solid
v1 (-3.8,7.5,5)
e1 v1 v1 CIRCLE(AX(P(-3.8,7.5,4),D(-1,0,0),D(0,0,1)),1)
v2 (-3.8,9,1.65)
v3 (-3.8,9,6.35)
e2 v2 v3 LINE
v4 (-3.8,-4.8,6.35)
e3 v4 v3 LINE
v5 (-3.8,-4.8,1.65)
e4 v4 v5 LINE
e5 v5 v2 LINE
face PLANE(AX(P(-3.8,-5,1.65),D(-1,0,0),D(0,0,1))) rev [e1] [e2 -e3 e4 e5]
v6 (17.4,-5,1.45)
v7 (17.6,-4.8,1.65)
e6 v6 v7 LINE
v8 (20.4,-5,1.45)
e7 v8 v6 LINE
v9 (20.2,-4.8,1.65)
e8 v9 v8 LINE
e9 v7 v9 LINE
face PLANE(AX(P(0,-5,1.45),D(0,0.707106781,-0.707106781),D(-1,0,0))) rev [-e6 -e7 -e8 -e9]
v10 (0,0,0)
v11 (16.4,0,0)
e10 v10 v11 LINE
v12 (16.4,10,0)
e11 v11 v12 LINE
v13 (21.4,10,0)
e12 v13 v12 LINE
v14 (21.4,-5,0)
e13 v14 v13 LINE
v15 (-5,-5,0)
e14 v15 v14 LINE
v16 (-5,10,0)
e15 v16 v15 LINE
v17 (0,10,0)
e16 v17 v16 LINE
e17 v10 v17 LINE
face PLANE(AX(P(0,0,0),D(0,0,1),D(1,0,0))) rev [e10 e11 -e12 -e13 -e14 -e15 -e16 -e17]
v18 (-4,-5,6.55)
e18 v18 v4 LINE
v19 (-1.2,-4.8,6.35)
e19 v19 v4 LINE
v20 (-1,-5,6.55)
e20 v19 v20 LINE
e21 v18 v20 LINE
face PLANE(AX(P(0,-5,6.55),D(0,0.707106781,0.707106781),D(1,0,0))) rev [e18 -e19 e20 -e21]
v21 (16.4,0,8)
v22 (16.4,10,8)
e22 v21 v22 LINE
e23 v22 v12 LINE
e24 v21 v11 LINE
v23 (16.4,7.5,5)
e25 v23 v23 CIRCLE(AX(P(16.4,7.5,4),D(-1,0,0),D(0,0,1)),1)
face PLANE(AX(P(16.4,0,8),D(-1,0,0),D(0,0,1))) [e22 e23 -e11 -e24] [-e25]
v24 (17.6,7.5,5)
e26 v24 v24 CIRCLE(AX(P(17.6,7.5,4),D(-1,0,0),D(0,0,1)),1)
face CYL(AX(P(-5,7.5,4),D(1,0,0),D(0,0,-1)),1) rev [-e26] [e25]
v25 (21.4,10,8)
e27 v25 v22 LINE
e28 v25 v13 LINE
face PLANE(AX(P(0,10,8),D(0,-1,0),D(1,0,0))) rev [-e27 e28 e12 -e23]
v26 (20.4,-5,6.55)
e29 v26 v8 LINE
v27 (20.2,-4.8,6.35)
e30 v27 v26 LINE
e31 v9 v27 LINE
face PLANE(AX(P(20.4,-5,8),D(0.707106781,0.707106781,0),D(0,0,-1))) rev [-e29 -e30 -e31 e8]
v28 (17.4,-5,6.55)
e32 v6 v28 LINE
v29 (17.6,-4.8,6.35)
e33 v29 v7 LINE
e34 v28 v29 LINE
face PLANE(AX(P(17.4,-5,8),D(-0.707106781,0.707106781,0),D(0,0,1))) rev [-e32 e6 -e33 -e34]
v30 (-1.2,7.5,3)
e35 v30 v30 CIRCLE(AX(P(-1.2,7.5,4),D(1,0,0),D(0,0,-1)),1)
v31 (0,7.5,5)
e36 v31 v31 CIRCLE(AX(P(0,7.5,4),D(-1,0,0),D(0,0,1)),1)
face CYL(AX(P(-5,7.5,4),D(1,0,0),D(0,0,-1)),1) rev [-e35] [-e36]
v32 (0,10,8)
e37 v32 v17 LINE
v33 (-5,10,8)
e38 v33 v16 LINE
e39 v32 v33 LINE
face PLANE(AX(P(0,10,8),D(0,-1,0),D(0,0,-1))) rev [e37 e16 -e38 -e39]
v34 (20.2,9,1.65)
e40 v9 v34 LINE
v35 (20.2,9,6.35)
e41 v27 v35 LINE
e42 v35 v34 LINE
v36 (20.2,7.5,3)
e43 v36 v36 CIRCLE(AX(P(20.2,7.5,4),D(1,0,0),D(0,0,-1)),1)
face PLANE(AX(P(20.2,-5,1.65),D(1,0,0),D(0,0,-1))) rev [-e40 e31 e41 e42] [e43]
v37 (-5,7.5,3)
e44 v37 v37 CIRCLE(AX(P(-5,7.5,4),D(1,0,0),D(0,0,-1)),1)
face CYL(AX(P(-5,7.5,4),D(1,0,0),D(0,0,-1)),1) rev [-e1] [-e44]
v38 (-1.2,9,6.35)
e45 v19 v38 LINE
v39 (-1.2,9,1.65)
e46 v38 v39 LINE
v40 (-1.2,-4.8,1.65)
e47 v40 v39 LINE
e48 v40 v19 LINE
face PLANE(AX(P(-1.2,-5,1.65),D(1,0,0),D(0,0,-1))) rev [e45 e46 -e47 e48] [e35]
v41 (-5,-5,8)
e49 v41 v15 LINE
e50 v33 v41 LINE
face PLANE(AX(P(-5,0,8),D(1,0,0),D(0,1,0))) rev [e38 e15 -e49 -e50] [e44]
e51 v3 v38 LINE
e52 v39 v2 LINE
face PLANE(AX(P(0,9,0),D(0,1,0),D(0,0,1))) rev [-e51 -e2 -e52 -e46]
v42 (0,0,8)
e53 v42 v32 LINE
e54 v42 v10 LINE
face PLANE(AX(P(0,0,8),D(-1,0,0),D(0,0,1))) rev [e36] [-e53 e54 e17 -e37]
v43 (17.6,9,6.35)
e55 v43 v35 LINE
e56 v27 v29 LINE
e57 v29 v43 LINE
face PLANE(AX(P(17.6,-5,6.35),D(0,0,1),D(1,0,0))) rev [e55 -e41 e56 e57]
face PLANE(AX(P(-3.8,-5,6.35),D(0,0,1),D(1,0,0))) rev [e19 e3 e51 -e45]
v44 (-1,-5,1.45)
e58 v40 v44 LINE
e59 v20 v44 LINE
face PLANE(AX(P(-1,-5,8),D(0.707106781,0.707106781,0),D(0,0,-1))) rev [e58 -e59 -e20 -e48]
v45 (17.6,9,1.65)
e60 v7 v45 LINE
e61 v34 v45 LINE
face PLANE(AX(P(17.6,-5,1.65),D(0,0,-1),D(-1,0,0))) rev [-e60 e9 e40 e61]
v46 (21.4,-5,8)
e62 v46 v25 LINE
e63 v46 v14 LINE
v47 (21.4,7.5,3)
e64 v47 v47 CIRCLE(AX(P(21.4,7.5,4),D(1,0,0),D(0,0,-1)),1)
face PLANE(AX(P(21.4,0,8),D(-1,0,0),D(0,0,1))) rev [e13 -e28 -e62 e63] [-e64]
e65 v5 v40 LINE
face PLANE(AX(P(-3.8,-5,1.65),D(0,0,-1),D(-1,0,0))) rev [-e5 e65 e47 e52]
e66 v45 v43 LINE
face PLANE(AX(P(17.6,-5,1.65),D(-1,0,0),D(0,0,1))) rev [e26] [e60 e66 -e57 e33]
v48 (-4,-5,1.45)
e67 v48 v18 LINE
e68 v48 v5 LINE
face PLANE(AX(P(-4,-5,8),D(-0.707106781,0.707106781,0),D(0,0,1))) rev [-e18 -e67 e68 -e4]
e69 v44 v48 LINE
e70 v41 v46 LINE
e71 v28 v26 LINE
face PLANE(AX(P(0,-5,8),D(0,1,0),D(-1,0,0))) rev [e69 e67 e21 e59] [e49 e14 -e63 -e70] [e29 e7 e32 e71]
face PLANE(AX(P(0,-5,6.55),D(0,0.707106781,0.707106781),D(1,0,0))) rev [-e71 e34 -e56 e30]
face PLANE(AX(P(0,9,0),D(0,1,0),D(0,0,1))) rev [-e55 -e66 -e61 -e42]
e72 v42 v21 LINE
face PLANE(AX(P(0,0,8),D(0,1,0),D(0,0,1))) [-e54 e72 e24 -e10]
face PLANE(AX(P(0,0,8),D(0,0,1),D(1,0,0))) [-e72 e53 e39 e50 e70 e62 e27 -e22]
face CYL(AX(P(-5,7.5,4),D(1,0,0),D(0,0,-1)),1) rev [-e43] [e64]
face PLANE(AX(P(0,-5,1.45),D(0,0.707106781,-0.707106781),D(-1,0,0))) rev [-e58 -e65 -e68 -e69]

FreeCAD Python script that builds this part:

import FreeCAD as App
import Part
import Sketcher

V = App.Vector


def edges_at(feature, points):
    """Names of the edges that pass closest to the given points."""
    edges = feature.Shape.Edges
    near = lambda p: min(range(len(edges)), key=lambda i: edges[i].distToShape(Part.Vertex(*p))[0])
    return sorted({f"Edge{near(p) + 1}" for p in points})

doc = App.newDocument("Part")
params = doc.addObject("Spreadsheet::Sheet", "Params")
for row, (alias, value) in enumerate([
    ("sketch1_width", "5 mm"),
    ("sketch1_height", "15 mm"),
    ("sketch1_height2", "10 mm"),
    ("sketch1_width2", "16.4 mm"),
    ("pad1_length", "8 mm"),
    ("sketch2_width", "2.6 mm"),
    ("sketch2_height", "4.7 mm"),
    ("sketch3_diameter", "2 mm"),
    ("chamfer_size", "0.2 mm"),
], start=1):
    params.set(f"A{row}", alias)
    params.set(f"B{row}", "=" + value)
    params.setAlias(f"B{row}", alias)

body = doc.addObject("PartDesign::Body", "Body")

sketch1 = body.newObject("Sketcher::SketchObject", "Sketch")
sketch1.AttachmentSupport = (doc.getObject("XY_Plane"), [""])
sketch1.MapMode = "FlatFace"
sketch1.addGeometry([
    Part.LineSegment(V(21.4, -5, 0), V(21.4, 10, 0)),
    Part.LineSegment(V(21.4, 10, 0), V(16.4, 10, 0)),
    Part.LineSegment(V(16.4, 10, 0), V(16.4, 0, 0)),
    Part.LineSegment(V(16.4, 0, 0), V(0, 0, 0)),
    Part.LineSegment(V(0, 0, 0), V(0, 10, 0)),
    Part.LineSegment(V(0, 10, 0), V(-5, 10, 0)),
    Part.LineSegment(V(-5, 10, 0), V(-5, -5, 0)),
    Part.LineSegment(V(-5, -5, 0), V(21.4, -5, 0)),
], False)
sketch1.addConstraint([
    Sketcher.Constraint("Coincident", 0, 2, 1, 1),
    Sketcher.Constraint("Coincident", 1, 2, 2, 1),
    Sketcher.Constraint("Coincident", 2, 2, 3, 1),
    Sketcher.Constraint("Coincident", 3, 2, 4, 1),
    Sketcher.Constraint("Coincident", 4, 2, 5, 1),
    Sketcher.Constraint("Coincident", 5, 2, 6, 1),
    Sketcher.Constraint("Coincident", 6, 2, 7, 1),
    Sketcher.Constraint("Coincident", 7, 2, 0, 1),
    Sketcher.Constraint("Vertical", 0),
    Sketcher.Constraint("Horizontal", 1),
    Sketcher.Constraint("Vertical", 2),
    Sketcher.Constraint("Horizontal", 3),
    Sketcher.Constraint("Vertical", 4),
    Sketcher.Constraint("Horizontal", 5),
    Sketcher.Constraint("Vertical", 6),
    Sketcher.Constraint("Horizontal", 7),
    Sketcher.Constraint("Coincident", 3, 2, -1, 1),
    Sketcher.Constraint("Horizontal", 1, 2, 4, 2),
    Sketcher.Constraint("Equal", 1, 5),
    Sketcher.Constraint("DistanceX", 1, 2, 1, 1, 5.0),
    Sketcher.Constraint("DistanceY", 0, 1, 0, 2, 15.0),
    Sketcher.Constraint("DistanceY", 2, 2, 2, 1, 10.0),
    Sketcher.Constraint("DistanceX", 3, 2, 3, 1, 16.4),
])
sketch1.setExpression("Constraints[19]", "Params.sketch1_width")
sketch1.setExpression("Constraints[20]", "Params.sketch1_height")
sketch1.setExpression("Constraints[21]", "Params.sketch1_height2")
sketch1.setExpression("Constraints[22]", "Params.sketch1_width2")
pad1 = body.newObject("PartDesign::Pad", "Pad")
pad1.Profile = sketch1
pad1.setExpression("Length", "Params.pad1_length")

sketch2 = body.newObject("Sketcher::SketchObject", "Sketch001")
sketch2.AttachmentSupport = (doc.getObject("XZ_Plane"), [""])
sketch2.MapMode = "FlatFace"
sketch2.AttachmentOffset = App.Placement(V(0, 0, -9), App.Rotation())
sketch2.addGeometry([
    Part.LineSegment(V(-3.8, 1.65, 0), V(-3.8, 6.35, 0)),
    Part.LineSegment(V(-3.8, 6.35, 0), V(-1.2, 6.35, 0)),
    Part.LineSegment(V(-1.2, 6.35, 0), V(-1.2, 1.65, 0)),
    Part.LineSegment(V(-1.2, 1.65, 0), V(-3.8, 1.65, 0)),
    Part.LineSegment(V(17.6, 1.65, 0), V(17.6, 6.35, 0)),
    Part.LineSegment(V(17.6, 6.35, 0), V(20.2, 6.35, 0)),
    Part.LineSegment(V(20.2, 6.35, 0), V(20.2, 1.65, 0)),
    Part.LineSegment(V(20.2, 1.65, 0), V(17.6, 1.65, 0)),
], False)
sketch2.addConstraint([
    Sketcher.Constraint("Coincident", 0, 2, 1, 1),
    Sketcher.Constraint("Coincident", 1, 2, 2, 1),
    Sketcher.Constraint("Coincident", 2, 2, 3, 1),
    Sketcher.Constraint("Coincident", 3, 2, 0, 1),
    Sketcher.Constraint("Coincident", 4, 2, 5, 1),
    Sketcher.Constraint("Coincident", 5, 2, 6, 1),
    Sketcher.Constraint("Coincident", 6, 2, 7, 1),
    Sketcher.Constraint("Coincident", 7, 2, 4, 1),
    Sketcher.Constraint("Vertical", 0),
    Sketcher.Constraint("Horizontal", 1),
    Sketcher.Constraint("Vertical", 2),
    Sketcher.Constraint("Horizontal", 3),
    Sketcher.Constraint("Vertical", 4),
    Sketcher.Constraint("Horizontal", 5),
    Sketcher.Constraint("Vertical", 6),
    Sketcher.Constraint("Horizontal", 7),
    Sketcher.Constraint("Horizontal", 1, 2, 4, 2),
    Sketcher.Constraint("Horizontal", 3, 2, 6, 2),
    Sketcher.Constraint("Equal", 3, 5),
    Sketcher.Constraint("DistanceX", 1, 1, 1, 2, 2.6),
    Sketcher.Constraint("DistanceY", 0, 1, 0, 2, 4.7),
    Sketcher.Constraint("DistanceX", 0, 2, 5, 2, 24.0),
    Sketcher.Constraint("DistanceX", 0, 2, -1, 1, 3.8),
    Sketcher.Constraint("DistanceY", -1, 1, 0, 2, 6.35),
])
sketch2.setExpression("Constraints[19]", "Params.sketch2_width")
sketch2.setExpression("Constraints[20]", "Params.sketch2_height")
pocket1 = body.newObject("PartDesign::Pocket", "Pocket")
pocket1.Profile = sketch2
pocket1.Type = "ThroughAll"
pocket1.Reversed = True

sketch3 = body.newObject("Sketcher::SketchObject", "Sketch002")
sketch3.AttachmentSupport = (doc.getObject("YZ_Plane"), [""])
sketch3.MapMode = "FlatFace"
sketch3.AttachmentOffset = App.Placement(V(0, 0, 21.4), App.Rotation())
sketch3.addGeometry(Part.Circle(V(7.5, 4, 0), V(0, 0, 1), 1), False)
sketch3.addConstraint([
    Sketcher.Constraint("Diameter", 0, 2.0),
    Sketcher.Constraint("DistanceY", -1, 1, 0, 3, 4.0),
    Sketcher.Constraint("DistanceX", -1, 1, 0, 3, 7.5),
])
sketch3.setExpression("Constraints[0]", "Params.sketch3_diameter")
pocket2 = body.newObject("PartDesign::Pocket", "Pocket001")
pocket2.Profile = sketch3
pocket2.Type = "ThroughAll"
doc.recompute()

chamfer = body.newObject("PartDesign::Chamfer", "Chamfer")
chamfer.Base = (pocket2, edges_at(pocket2, [
    (-1.2, -5, 4),
    (-2.5, -5, 6.35),
    (-3.8, -5, 4),
    (-2.5, -5, 1.65),
    (20.2, -5, 4),
    (18.9, -5, 6.35),
    (17.6, -5, 4),
    (18.9, -5, 1.65),
]))
chamfer.setExpression("Size", "Params.chamfer_size")

doc.recompute()
